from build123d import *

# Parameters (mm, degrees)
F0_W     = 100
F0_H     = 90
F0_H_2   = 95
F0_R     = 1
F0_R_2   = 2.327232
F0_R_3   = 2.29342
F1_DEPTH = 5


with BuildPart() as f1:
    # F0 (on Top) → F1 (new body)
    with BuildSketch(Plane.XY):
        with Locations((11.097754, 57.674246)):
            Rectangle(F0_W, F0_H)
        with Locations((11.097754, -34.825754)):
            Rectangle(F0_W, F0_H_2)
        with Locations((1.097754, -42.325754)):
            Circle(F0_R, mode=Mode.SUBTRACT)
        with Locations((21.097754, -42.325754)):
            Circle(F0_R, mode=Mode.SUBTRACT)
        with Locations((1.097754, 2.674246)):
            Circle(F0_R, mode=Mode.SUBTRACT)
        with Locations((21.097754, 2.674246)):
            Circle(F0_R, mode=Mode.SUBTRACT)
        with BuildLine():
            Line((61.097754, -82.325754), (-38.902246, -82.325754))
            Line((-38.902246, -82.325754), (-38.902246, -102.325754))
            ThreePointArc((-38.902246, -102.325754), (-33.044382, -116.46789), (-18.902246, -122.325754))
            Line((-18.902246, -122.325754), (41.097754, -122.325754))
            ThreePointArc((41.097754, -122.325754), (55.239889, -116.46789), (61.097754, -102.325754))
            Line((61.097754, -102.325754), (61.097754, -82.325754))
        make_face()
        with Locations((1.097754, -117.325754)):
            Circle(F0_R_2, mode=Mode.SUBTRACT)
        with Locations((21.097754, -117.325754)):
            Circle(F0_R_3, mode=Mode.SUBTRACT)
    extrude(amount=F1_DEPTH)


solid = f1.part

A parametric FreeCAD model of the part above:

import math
import FreeCAD as App
import Part
import Sketcher
from FreeCAD import Vector
Q = App.Units.Quantity

doc = App.newDocument("Part")
body = doc.addObject("PartDesign::Body", "Body")

sketch1 = body.newObject("Sketcher::SketchObject", "Sketch")
sketch1.AttachmentSupport = (doc.getObject("XY_Plane"), [""])
sketch1.MapMode = "FlatFace"
sketch1.addGeometry(Part.LineSegment(Vector(-38.9, 102.7, 0), Vector(-38.9, -102.3, 0)), False)
sketch1.addGeometry(Part.ArcOfCircle(Part.Circle(Vector(-18.9, -102.3, 0), Vector(0, 0, 1), 20), math.radians(180), math.radians(270)), False)
sketch1.addGeometry(Part.LineSegment(Vector(-18.9, -122.3, 0), Vector(41.1, -122.3, 0)), False)
sketch1.addGeometry(Part.ArcOfCircle(Part.Circle(Vector(41.1, -102.3, 0), Vector(0, 0, 1), 20), math.radians(-90), math.radians(0)), False)
sketch1.addGeometry(Part.LineSegment(Vector(61.1, -102.3, 0), Vector(61.1, 102.7, 0)), False)
sketch1.addGeometry(Part.LineSegment(Vector(61.1, 102.7, 0), Vector(-38.9, 102.7, 0)), False)
sketch1.addGeometry(Part.Circle(Vector(1.1, -117.3, 0), Vector(0, 0, 1), 2.3), False)
sketch1.addGeometry(Part.Circle(Vector(21.1, -117.3, 0), Vector(0, 0, 1), 2.3), False)
sketch1.addGeometry(Part.Circle(Vector(1.1, -42.3, 0), Vector(0, 0, 1), 1), False)
sketch1.addGeometry(Part.Circle(Vector(1.1, 2.7, 0), Vector(0, 0, 1), 1), False)
sketch1.addGeometry(Part.Circle(Vector(21.1, -42.3, 0), Vector(0, 0, 1), 1), False)
sketch1.addGeometry(Part.Circle(Vector(21.1, 2.7, 0), Vector(0, 0, 1), 1), False)
sketch1.addConstraint(Sketcher.Constraint("Tangent", 0, 2, 1, 1))
sketch1.addConstraint(Sketcher.Constraint("Tangent", 1, 2, 2, 1))
sketch1.addConstraint(Sketcher.Constraint("Tangent", 2, 2, 3, 1))
sketch1.addConstraint(Sketcher.Constraint("Tangent", 3, 2, 4, 1))
sketch1.addConstraint(Sketcher.Constraint("Coincident", 4, 2, 5, 1))
sketch1.addConstraint(Sketcher.Constraint("Coincident", 5, 2, 0, 1))
sketch1.addConstraint(Sketcher.Constraint("Vertical", 0))
sketch1.addConstraint(Sketcher.Constraint("Horizontal", 2))
sketch1.addConstraint(Sketcher.Constraint("Vertical", 4))
sketch1.addConstraint(Sketcher.Constraint("Horizontal", 5))
sketch1.addConstraint(Sketcher.Constraint("Equal", 1, 3))
sketch1.addConstraint(Sketcher.Constraint("Equal", 8, 9))
sketch1.addConstraint(Sketcher.Constraint("Equal", 9, 10))
sketch1.addConstraint(Sketcher.Constraint("Equal", 10, 11))
sketch1.addConstraint(Sketcher.Constraint("Horizontal", 6, 3, 7, 3))
sketch1.addConstraint(Sketcher.Constraint("Horizontal", 8, 3, 10, 3))
sketch1.addConstraint(Sketcher.Constraint("Horizontal", 9, 3, 11, 3))
sketch1.addConstraint(Sketcher.Constraint("Vertical", 6, 3, 8, 3))
sketch1.addConstraint(Sketcher.Constraint("Vertical", 8, 3, 9, 3))
sketch1.addConstraint(Sketcher.Constraint("Vertical", 7, 3, 10, 3))
sketch1.addConstraint(Sketcher.Constraint("Vertical", 10, 3, 11, 3))
sketch1.addConstraint(Sketcher.Constraint("Diameter", 8, Q("2 mm")))
sketch1.addConstraint(Sketcher.Constraint("Radius", 1, Q("19.999999 mm")))
sketch1.addConstraint(Sketcher.Constraint("DistanceX", 2, 1, 2, 2, Q("60 mm")))
sketch1.addConstraint(Sketcher.Constraint("DistanceY", 0, 2, 0, 1, Q("205 mm")))
sketch1.addConstraint(Sketcher.Constraint("DistanceX", 1, 3, 6, 3, Q("20.000001 mm")))
sketch1.addConstraint(Sketcher.Constraint("DistanceY", 6, 3, 1, 3, Q("14.999999 mm")))
sketch1.addConstraint(Sketcher.Constraint("DistanceX", 6, 3, 7, 3, Q("20 mm")))
sketch1.addConstraint(Sketcher.Constraint("DistanceY", 1, 3, 8, 3, Q("60.000001 mm")))
sketch1.addConstraint(Sketcher.Constraint("DistanceY", 8, 3, 9, 3, Q("45 mm")))
sketch1.addConstraint(Sketcher.Constraint("Diameter", 7, Q("4.58684 mm")))
sketch1.addConstraint(Sketcher.Constraint("Diameter", 6, Q("4.654464 mm")))
sketch1.addConstraint(Sketcher.Constraint("DistanceX", 1, 3, -1, 1, Q("18.902247 mm")))
sketch1.addConstraint(Sketcher.Constraint("DistanceY", 1, 3, -1, 1, Q("102.325755 mm")))
pad1 = body.newObject("PartDesign::Pad", "Pad")
pad1.Profile = sketch1
pad1.Length = 5

doc.recompute()
